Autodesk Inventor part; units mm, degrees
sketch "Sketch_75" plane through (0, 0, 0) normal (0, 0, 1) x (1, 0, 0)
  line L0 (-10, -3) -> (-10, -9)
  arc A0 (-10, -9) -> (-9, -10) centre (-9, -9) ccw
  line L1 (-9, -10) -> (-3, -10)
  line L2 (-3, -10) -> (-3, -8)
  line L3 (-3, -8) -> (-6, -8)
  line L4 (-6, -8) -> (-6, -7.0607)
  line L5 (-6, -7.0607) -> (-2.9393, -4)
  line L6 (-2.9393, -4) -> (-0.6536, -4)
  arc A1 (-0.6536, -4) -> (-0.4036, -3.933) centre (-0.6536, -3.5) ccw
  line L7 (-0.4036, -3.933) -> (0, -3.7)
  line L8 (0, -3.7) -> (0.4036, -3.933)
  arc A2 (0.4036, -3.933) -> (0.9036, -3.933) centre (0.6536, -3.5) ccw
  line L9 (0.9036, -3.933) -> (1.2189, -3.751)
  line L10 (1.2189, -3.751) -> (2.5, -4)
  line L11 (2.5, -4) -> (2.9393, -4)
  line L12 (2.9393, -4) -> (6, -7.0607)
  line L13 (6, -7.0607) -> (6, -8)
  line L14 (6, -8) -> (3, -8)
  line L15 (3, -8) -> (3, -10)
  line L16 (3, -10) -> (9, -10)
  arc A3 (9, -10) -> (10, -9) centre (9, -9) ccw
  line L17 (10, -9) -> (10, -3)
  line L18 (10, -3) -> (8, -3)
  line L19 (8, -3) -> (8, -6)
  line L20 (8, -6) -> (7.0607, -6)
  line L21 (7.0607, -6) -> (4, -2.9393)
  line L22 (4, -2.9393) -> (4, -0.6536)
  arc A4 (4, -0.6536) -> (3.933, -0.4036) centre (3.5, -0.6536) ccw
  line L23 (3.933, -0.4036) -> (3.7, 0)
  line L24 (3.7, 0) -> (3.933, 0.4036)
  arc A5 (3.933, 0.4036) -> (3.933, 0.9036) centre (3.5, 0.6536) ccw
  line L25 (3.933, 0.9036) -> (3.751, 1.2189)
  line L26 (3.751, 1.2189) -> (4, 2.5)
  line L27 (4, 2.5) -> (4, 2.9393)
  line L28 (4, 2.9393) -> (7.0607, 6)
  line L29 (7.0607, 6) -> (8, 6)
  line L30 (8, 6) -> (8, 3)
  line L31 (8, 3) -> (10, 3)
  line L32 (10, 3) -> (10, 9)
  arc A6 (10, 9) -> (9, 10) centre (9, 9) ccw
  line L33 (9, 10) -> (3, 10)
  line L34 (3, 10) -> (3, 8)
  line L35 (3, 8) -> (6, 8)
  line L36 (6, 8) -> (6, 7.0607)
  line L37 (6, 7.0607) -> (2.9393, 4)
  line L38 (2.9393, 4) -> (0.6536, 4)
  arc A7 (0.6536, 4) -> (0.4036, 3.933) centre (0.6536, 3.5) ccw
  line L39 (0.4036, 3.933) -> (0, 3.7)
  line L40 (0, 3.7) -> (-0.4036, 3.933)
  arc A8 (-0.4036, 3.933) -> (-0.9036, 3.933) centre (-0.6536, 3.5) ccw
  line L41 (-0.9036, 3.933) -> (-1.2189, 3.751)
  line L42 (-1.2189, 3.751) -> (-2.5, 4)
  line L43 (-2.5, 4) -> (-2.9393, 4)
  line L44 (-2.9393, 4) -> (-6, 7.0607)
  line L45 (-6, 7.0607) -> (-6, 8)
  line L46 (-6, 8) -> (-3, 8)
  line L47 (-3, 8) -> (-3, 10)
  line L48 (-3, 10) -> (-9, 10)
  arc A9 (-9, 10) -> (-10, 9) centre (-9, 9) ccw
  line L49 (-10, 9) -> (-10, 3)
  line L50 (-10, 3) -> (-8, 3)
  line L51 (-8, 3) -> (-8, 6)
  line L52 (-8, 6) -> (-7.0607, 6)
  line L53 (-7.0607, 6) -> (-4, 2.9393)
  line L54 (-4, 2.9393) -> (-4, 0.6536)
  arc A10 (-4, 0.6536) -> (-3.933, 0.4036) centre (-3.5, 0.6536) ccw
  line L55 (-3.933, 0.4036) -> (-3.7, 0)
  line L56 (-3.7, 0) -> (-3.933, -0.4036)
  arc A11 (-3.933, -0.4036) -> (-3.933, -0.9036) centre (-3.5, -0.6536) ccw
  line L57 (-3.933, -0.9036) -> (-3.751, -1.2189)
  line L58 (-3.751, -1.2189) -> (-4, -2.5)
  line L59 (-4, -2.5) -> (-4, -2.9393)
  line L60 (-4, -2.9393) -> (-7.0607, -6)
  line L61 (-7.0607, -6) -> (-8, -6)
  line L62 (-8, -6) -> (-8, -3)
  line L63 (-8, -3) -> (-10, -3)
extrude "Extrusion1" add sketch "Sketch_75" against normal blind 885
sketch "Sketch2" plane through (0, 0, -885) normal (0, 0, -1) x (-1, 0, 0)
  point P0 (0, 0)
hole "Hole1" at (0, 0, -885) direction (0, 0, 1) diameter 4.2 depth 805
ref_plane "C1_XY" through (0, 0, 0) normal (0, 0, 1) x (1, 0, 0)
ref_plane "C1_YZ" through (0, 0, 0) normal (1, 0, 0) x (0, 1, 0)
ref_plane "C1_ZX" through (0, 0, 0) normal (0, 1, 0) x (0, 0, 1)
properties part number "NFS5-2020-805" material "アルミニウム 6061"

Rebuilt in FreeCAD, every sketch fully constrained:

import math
import FreeCAD as App
import Part
import Sketcher

V = App.Vector
Q = App.Units.Quantity

doc = App.newDocument("Part")
params = doc.addObject("Spreadsheet::Sheet", "Params")
for row, (alias, value) in enumerate([
    ("sketch1_radius", "1 mm"),
    ("sketch1_radius2", "0.5 mm"),
    ("sketch1_width", "2 mm"),
    ("sketch1_width2", "6 mm"),
    ("sketch1_width3", "3 mm"),
    ("pad1_length", "885 mm"),
    ("sketch2_diameter", "4.2 mm"),
    ("hole_diameter", "4.2 mm"),
    ("hole_depth", "805 mm"),
], start=1):
    params.set(f"A{row}", alias)
    params.set(f"B{row}", "=" + value)
    params.setAlias(f"B{row}", alias)

body = doc.addObject("PartDesign::Body", "Body")

# Sketch on XY plane
sketch1 = body.newObject("Sketcher::SketchObject", "Sketch")
sketch1.AttachmentSupport = (doc.getObject("XY_Plane"), [""])
sketch1.MapMode = "FlatFace"
sketch1.addGeometry(Part.LineSegment(V(-8, -3, 0), V(-10, -3, 0)), False)
sketch1.addGeometry(Part.LineSegment(V(-10, -3, 0), V(-10, -9, 0)), False)
sketch1.addGeometry(Part.ArcOfCircle(Part.Circle(V(-9, -9, 0), V(0, 0, 1), 1), math.radians(180), math.radians(270)), False)
sketch1.addGeometry(Part.LineSegment(V(-9, -10, 0), V(-3, -10, 0)), False)
sketch1.addGeometry(Part.LineSegment(V(-3, -10, 0), V(-3, -8, 0)), False)
sketch1.addGeometry(Part.LineSegment(V(-3, -8, 0), V(-6, -8, 0)), False)
sketch1.addGeometry(Part.LineSegment(V(-6, -8, 0), V(-6, -7.06, 0)), False)
sketch1.addGeometry(Part.LineSegment(V(-6, -7.06, 0), V(-2.94, -4, 0)), False)
sketch1.addGeometry(Part.LineSegment(V(-2.94, -4, 0), V(-0.65, -4, 0)), False)
sketch1.addGeometry(Part.ArcOfCircle(Part.Circle(V(-0.65, -3.5, 0), V(0, 0, 1), 0.5), math.radians(-90), math.radians(-60)), False)
sketch1.addGeometry(Part.LineSegment(V(-0.4, -3.93, 0), V(0, -3.7, 0)), False)
sketch1.addGeometry(Part.LineSegment(V(0, -3.7, 0), V(0.4, -3.93, 0)), False)
sketch1.addGeometry(Part.ArcOfCircle(Part.Circle(V(0.65, -3.5, 0), V(0, 0, 1), 0.5), math.radians(-120), math.radians(-60)), False)
sketch1.addGeometry(Part.LineSegment(V(0.9, -3.93, 0), V(1.22, -3.75, 0)), False)
sketch1.addGeometry(Part.LineSegment(V(1.22, -3.75, 0), V(2.5, -4, 0)), False)
sketch1.addGeometry(Part.LineSegment(V(2.5, -4, 0), V(2.94, -4, 0)), False)
sketch1.addGeometry(Part.LineSegment(V(2.94, -4, 0), V(6, -7.06, 0)), False)
sketch1.addGeometry(Part.LineSegment(V(6, -7.06, 0), V(6, -8, 0)), False)
sketch1.addGeometry(Part.LineSegment(V(6, -8, 0), V(3, -8, 0)), False)
sketch1.addGeometry(Part.LineSegment(V(3, -8, 0), V(3, -10, 0)), False)
sketch1.addGeometry(Part.LineSegment(V(3, -10, 0), V(9, -10, 0)), False)
sketch1.addGeometry(Part.ArcOfCircle(Part.Circle(V(9, -9, 0), V(0, 0, 1), 1), math.radians(-90), math.radians(0)), False)
sketch1.addGeometry(Part.LineSegment(V(10, -9, 0), V(10, -3, 0)), False)
sketch1.addGeometry(Part.LineSegment(V(10, -3, 0), V(8, -3, 0)), False)
sketch1.addGeometry(Part.LineSegment(V(8, -3, 0), V(8, -6, 0)), False)
sketch1.addGeometry(Part.LineSegment(V(8, -6, 0), V(7.06, -6, 0)), False)
sketch1.addGeometry(Part.LineSegment(V(7.06, -6, 0), V(4, -2.94, 0)), False)
sketch1.addGeometry(Part.LineSegment(V(4, -2.94, 0), V(4, -0.65, 0)), False)
sketch1.addGeometry(Part.ArcOfCircle(Part.Circle(V(3.5, -0.65, 0), V(0, 0, 1), 0.5), math.radians(0), math.radians(30)), False)
sketch1.addGeometry(Part.LineSegment(V(3.93, -0.4, 0), V(3.7, 0, 0)), False)
sketch1.addGeometry(Part.LineSegment(V(3.7, 0, 0), V(3.93, 0.4, 0)), False)
sketch1.addGeometry(Part.ArcOfCircle(Part.Circle(V(3.5, 0.65, 0), V(0, 0, 1), 0.5), math.radians(-30), math.radians(30)), False)
sketch1.addGeometry(Part.LineSegment(V(3.93, 0.9, 0), V(3.75, 1.22, 0)), False)
sketch1.addGeometry(Part.LineSegment(V(3.75, 1.22, 0), V(4, 2.5, 0)), False)
sketch1.addGeometry(Part.LineSegment(V(4, 2.5, 0), V(4, 2.94, 0)), False)
sketch1.addGeometry(Part.LineSegment(V(4, 2.94, 0), V(7.06, 6, 0)), False)
sketch1.addGeometry(Part.LineSegment(V(7.06, 6, 0), V(8, 6, 0)), False)
sketch1.addGeometry(Part.LineSegment(V(8, 6, 0), V(8, 3, 0)), False)
sketch1.addGeometry(Part.LineSegment(V(8, 3, 0), V(10, 3, 0)), False)
sketch1.addGeometry(Part.LineSegment(V(10, 3, 0), V(10, 9, 0)), False)
sketch1.addGeometry(Part.ArcOfCircle(Part.Circle(V(9, 9, 0), V(0, 0, 1), 1), math.radians(0), math.radians(90)), False)
sketch1.addGeometry(Part.LineSegment(V(9, 10, 0), V(3, 10, 0)), False)
sketch1.addGeometry(Part.LineSegment(V(3, 10, 0), V(3, 8, 0)), False)
sketch1.addGeometry(Part.LineSegment(V(3, 8, 0), V(6, 8, 0)), False)
sketch1.addGeometry(Part.LineSegment(V(6, 8, 0), V(6, 7.06, 0)), False)
sketch1.addGeometry(Part.LineSegment(V(6, 7.06, 0), V(2.94, 4, 0)), False)
sketch1.addGeometry(Part.LineSegment(V(2.94, 4, 0), V(0.65, 4, 0)), False)
sketch1.addGeometry(Part.ArcOfCircle(Part.Circle(V(0.65, 3.5, 0), V(0, 0, 1), 0.5), math.radians(90), math.radians(120)), False)
sketch1.addGeometry(Part.LineSegment(V(0.4, 3.93, 0), V(0, 3.7, 0)), False)
sketch1.addGeometry(Part.LineSegment(V(0, 3.7, 0), V(-0.4, 3.93, 0)), False)
sketch1.addGeometry(Part.ArcOfCircle(Part.Circle(V(-0.65, 3.5, 0), V(0, 0, 1), 0.5), math.radians(60), math.radians(120)), False)
sketch1.addGeometry(Part.LineSegment(V(-0.9, 3.93, 0), V(-1.22, 3.75, 0)), False)
sketch1.addGeometry(Part.LineSegment(V(-1.22, 3.75, 0), V(-2.5, 4, 0)), False)
sketch1.addGeometry(Part.LineSegment(V(-2.5, 4, 0), V(-2.94, 4, 0)), False)
sketch1.addGeometry(Part.LineSegment(V(-2.94, 4, 0), V(-6, 7.06, 0)), False)
sketch1.addGeometry(Part.LineSegment(V(-6, 7.06, 0), V(-6, 8, 0)), False)
sketch1.addGeometry(Part.LineSegment(V(-6, 8, 0), V(-3, 8, 0)), False)
sketch1.addGeometry(Part.LineSegment(V(-3, 8, 0), V(-3, 10, 0)), False)
sketch1.addGeometry(Part.LineSegment(V(-3, 10, 0), V(-9, 10, 0)), False)
sketch1.addGeometry(Part.ArcOfCircle(Part.Circle(V(-9, 9, 0), V(0, 0, 1), 1), math.radians(90), math.radians(180)), False)
sketch1.addGeometry(Part.LineSegment(V(-10, 9, 0), V(-10, 3, 0)), False)
sketch1.addGeometry(Part.LineSegment(V(-10, 3, 0), V(-8, 3, 0)), False)
sketch1.addGeometry(Part.LineSegment(V(-8, 3, 0), V(-8, 6, 0)), False)
sketch1.addGeometry(Part.LineSegment(V(-8, 6, 0), V(-7.06, 6, 0)), False)
sketch1.addGeometry(Part.LineSegment(V(-7.06, 6, 0), V(-4, 2.94, 0)), False)
sketch1.addGeometry(Part.LineSegment(V(-4, 2.94, 0), V(-4, 0.65, 0)), False)
sketch1.addGeometry(Part.ArcOfCircle(Part.Circle(V(-3.5, 0.65, 0), V(0, 0, 1), 0.5), math.radians(180), math.radians(210)), False)
sketch1.addGeometry(Part.LineSegment(V(-3.93, 0.4, 0), V(-3.7, 0, 0)), False)
sketch1.addGeometry(Part.LineSegment(V(-3.7, 0, 0), V(-3.93, -0.4, 0)), False)
sketch1.addGeometry(Part.ArcOfCircle(Part.Circle(V(-3.5, -0.65, 0), V(0, 0, 1), 0.5), math.radians(150), math.radians(210)), False)
sketch1.addGeometry(Part.LineSegment(V(-3.93, -0.9, 0), V(-3.75, -1.22, 0)), False)
sketch1.addGeometry(Part.LineSegment(V(-3.75, -1.22, 0), V(-4, -2.5, 0)), False)
sketch1.addGeometry(Part.LineSegment(V(-4, -2.5, 0), V(-4, -2.94, 0)), False)
sketch1.addGeometry(Part.LineSegment(V(-4, -2.94, 0), V(-7.06, -6, 0)), False)
sketch1.addGeometry(Part.LineSegment(V(-7.06, -6, 0), V(-8, -6, 0)), False)
sketch1.addGeometry(Part.LineSegment(V(-8, -6, 0), V(-8, -3, 0)), False)
sketch1.addConstraint(Sketcher.Constraint("Coincident", 0, 2, 1, 1))
sketch1.addConstraint(Sketcher.Constraint("Tangent", 1, 2, 2, 1))
sketch1.addConstraint(Sketcher.Constraint("Tangent", 2, 2, 3, 1))
sketch1.addConstraint(Sketcher.Constraint("Coincident", 3, 2, 4, 1))
sketch1.addConstraint(Sketcher.Constraint("Coincident", 4, 2, 5, 1))
sketch1.addConstraint(Sketcher.Constraint("Coincident", 5, 2, 6, 1))
sketch1.addConstraint(Sketcher.Constraint("Coincident", 6, 2, 7, 1))
sketch1.addConstraint(Sketcher.Constraint("Coincident", 7, 2, 8, 1))
sketch1.addConstraint(Sketcher.Constraint("Tangent", 8, 2, 9, 1))
sketch1.addConstraint(Sketcher.Constraint("Tangent", 9, 2, 10, 1))
sketch1.addConstraint(Sketcher.Constraint("Coincident", 10, 2, 11, 1))
sketch1.addConstraint(Sketcher.Constraint("Tangent", 11, 2, 12, 1))
sketch1.addConstraint(Sketcher.Constraint("Tangent", 12, 2, 13, 1))
sketch1.addConstraint(Sketcher.Constraint("Coincident", 13, 2, 14, 1))
sketch1.addConstraint(Sketcher.Constraint("Coincident", 14, 2, 15, 1))
sketch1.addConstraint(Sketcher.Constraint("Coincident", 15, 2, 16, 1))
sketch1.addConstraint(Sketcher.Constraint("Coincident", 16, 2, 17, 1))
sketch1.addConstraint(Sketcher.Constraint("Coincident", 17, 2, 18, 1))
sketch1.addConstraint(Sketcher.Constraint("Coincident", 18, 2, 19, 1))
sketch1.addConstraint(Sketcher.Constraint("Coincident", 19, 2, 20, 1))
sketch1.addConstraint(Sketcher.Constraint("Tangent", 20, 2, 21, 1))
sketch1.addConstraint(Sketcher.Constraint("Tangent", 21, 2, 22, 1))
sketch1.addConstraint(Sketcher.Constraint("Coincident", 22, 2, 23, 1))
sketch1.addConstraint(Sketcher.Constraint("Coincident", 23, 2, 24, 1))
sketch1.addConstraint(Sketcher.Constraint("Coincident", 24, 2, 25, 1))
sketch1.addConstraint(Sketcher.Constraint("Coincident", 25, 2, 26, 1))
sketch1.addConstraint(Sketcher.Constraint("Coincident", 26, 2, 27, 1))
sketch1.addConstraint(Sketcher.Constraint("Tangent", 27, 2, 28, 1))
sketch1.addConstraint(Sketcher.Constraint("Tangent", 28, 2, 29, 1))
sketch1.addConstraint(Sketcher.Constraint("Coincident", 29, 2, 30, 1))
sketch1.addConstraint(Sketcher.Constraint("Tangent", 30, 2, 31, 1))
sketch1.addConstraint(Sketcher.Constraint("Tangent", 31, 2, 32, 1))
sketch1.addConstraint(Sketcher.Constraint("Coincident", 32, 2, 33, 1))
sketch1.addConstraint(Sketcher.Constraint("Coincident", 33, 2, 34, 1))
sketch1.addConstraint(Sketcher.Constraint("Coincident", 34, 2, 35, 1))
sketch1.addConstraint(Sketcher.Constraint("Coincident", 35, 2, 36, 1))
sketch1.addConstraint(Sketcher.Constraint("Coincident", 36, 2, 37, 1))
sketch1.addConstraint(Sketcher.Constraint("Coincident", 37, 2, 38, 1))
sketch1.addConstraint(Sketcher.Constraint("Coincident", 38, 2, 39, 1))
sketch1.addConstraint(Sketcher.Constraint("Tangent", 39, 2, 40, 1))
sketch1.addConstraint(Sketcher.Constraint("Tangent", 40, 2, 41, 1))
sketch1.addConstraint(Sketcher.Constraint("Coincident", 41, 2, 42, 1))
sketch1.addConstraint(Sketcher.Constraint("Coincident", 42, 2, 43, 1))
sketch1.addConstraint(Sketcher.Constraint("Coincident", 43, 2, 44, 1))
sketch1.addConstraint(Sketcher.Constraint("Coincident", 44, 2, 45, 1))
sketch1.addConstraint(Sketcher.Constraint("Coincident", 45, 2, 46, 1))
sketch1.addConstraint(Sketcher.Constraint("Tangent", 46, 2, 47, 1))
sketch1.addConstraint(Sketcher.Constraint("Tangent", 47, 2, 48, 1))
sketch1.addConstraint(Sketcher.Constraint("Coincident", 48, 2, 49, 1))
sketch1.addConstraint(Sketcher.Constraint("Tangent", 49, 2, 50, 1))
sketch1.addConstraint(Sketcher.Constraint("Tangent", 50, 2, 51, 1))
sketch1.addConstraint(Sketcher.Constraint("Coincident", 51, 2, 52, 1))
sketch1.addConstraint(Sketcher.Constraint("Coincident", 52, 2, 53, 1))
sketch1.addConstraint(Sketcher.Constraint("Coincident", 53, 2, 54, 1))
sketch1.addConstraint(Sketcher.Constraint("Coincident", 54, 2, 55, 1))
sketch1.addConstraint(Sketcher.Constraint("Coincident", 55, 2, 56, 1))
sketch1.addConstraint(Sketcher.Constraint("Coincident", 56, 2, 57, 1))
sketch1.addConstraint(Sketcher.Constraint("Coincident", 57, 2, 58, 1))
sketch1.addConstraint(Sketcher.Constraint("Tangent", 58, 2, 59, 1))
sketch1.addConstraint(Sketcher.Constraint("Tangent", 59, 2, 60, 1))
sketch1.addConstraint(Sketcher.Constraint("Coincident", 60, 2, 61, 1))
sketch1.addConstraint(Sketcher.Constraint("Coincident", 61, 2, 62, 1))
sketch1.addConstraint(Sketcher.Constraint("Coincident", 62, 2, 63, 1))
sketch1.addConstraint(Sketcher.Constraint("Coincident", 63, 2, 64, 1))
sketch1.addConstraint(Sketcher.Constraint("Coincident", 64, 2, 65, 1))
sketch1.addConstraint(Sketcher.Constraint("Tangent", 65, 2, 66, 1))
sketch1.addConstraint(Sketcher.Constraint("Tangent", 66, 2, 67, 1))
sketch1.addConstraint(Sketcher.Constraint("Coincident", 67, 2, 68, 1))
sketch1.addConstraint(Sketcher.Constraint("Tangent", 68, 2, 69, 1))
sketch1.addConstraint(Sketcher.Constraint("Tangent", 69, 2, 70, 1))
sketch1.addConstraint(Sketcher.Constraint("Coincident", 70, 2, 71, 1))
sketch1.addConstraint(Sketcher.Constraint("Coincident", 71, 2, 72, 1))
sketch1.addConstraint(Sketcher.Constraint("Coincident", 72, 2, 73, 1))
sketch1.addConstraint(Sketcher.Constraint("Coincident", 73, 2, 74, 1))
sketch1.addConstraint(Sketcher.Constraint("Coincident", 74, 2, 75, 1))
sketch1.addConstraint(Sketcher.Constraint("Coincident", 75, 2, 0, 1))
sketch1.addConstraint(Sketcher.Constraint("Horizontal", 0))
sketch1.addConstraint(Sketcher.Constraint("Vertical", 1))
sketch1.addConstraint(Sketcher.Constraint("Horizontal", 3))
sketch1.addConstraint(Sketcher.Constraint("Vertical", 4))
sketch1.addConstraint(Sketcher.Constraint("Horizontal", 5))
sketch1.addConstraint(Sketcher.Constraint("Vertical", 6))
sketch1.addConstraint(Sketcher.Constraint("Horizontal", 8))
sketch1.addConstraint(Sketcher.Constraint("Horizontal", 15))
sketch1.addConstraint(Sketcher.Constraint("Vertical", 17))
sketch1.addConstraint(Sketcher.Constraint("Horizontal", 18))
sketch1.addConstraint(Sketcher.Constraint("Vertical", 19))
sketch1.addConstraint(Sketcher.Constraint("Horizontal", 20))
sketch1.addConstraint(Sketcher.Constraint("Vertical", 22))
sketch1.addConstraint(Sketcher.Constraint("Horizontal", 23))
sketch1.addConstraint(Sketcher.Constraint("Vertical", 24))
sketch1.addConstraint(Sketcher.Constraint("Horizontal", 25))
sketch1.addConstraint(Sketcher.Constraint("Vertical", 27))
sketch1.addConstraint(Sketcher.Constraint("Vertical", 34))
sketch1.addConstraint(Sketcher.Constraint("Horizontal", 36))
sketch1.addConstraint(Sketcher.Constraint("Vertical", 37))
sketch1.addConstraint(Sketcher.Constraint("Horizontal", 38))
sketch1.addConstraint(Sketcher.Constraint("Vertical", 39))
sketch1.addConstraint(Sketcher.Constraint("Horizontal", 41))
sketch1.addConstraint(Sketcher.Constraint("Vertical", 42))
sketch1.addConstraint(Sketcher.Constraint("Horizontal", 43))
sketch1.addConstraint(Sketcher.Constraint("Vertical", 44))
sketch1.addConstraint(Sketcher.Constraint("Horizontal", 46))
sketch1.addConstraint(Sketcher.Constraint("Horizontal", 53))
sketch1.addConstraint(Sketcher.Constraint("Vertical", 55))
sketch1.addConstraint(Sketcher.Constraint("Horizontal", 56))
sketch1.addConstraint(Sketcher.Constraint("Vertical", 57))
sketch1.addConstraint(Sketcher.Constraint("Horizontal", 58))
sketch1.addConstraint(Sketcher.Constraint("Vertical", 60))
sketch1.addConstraint(Sketcher.Constraint("Horizontal", 61))
sketch1.addConstraint(Sketcher.Constraint("Vertical", 62))
sketch1.addConstraint(Sketcher.Constraint("Horizontal", 63))
sketch1.addConstraint(Sketcher.Constraint("Vertical", 65))
sketch1.addConstraint(Sketcher.Constraint("Vertical", 72))
sketch1.addConstraint(Sketcher.Constraint("Horizontal", 74))
sketch1.addConstraint(Sketcher.Constraint("Vertical", 75))
sketch1.addConstraint(Sketcher.Constraint("Equal", 9, 12))
sketch1.addConstraint(Sketcher.Constraint("Equal", 2, 21))
sketch1.addConstraint(Sketcher.Constraint("Equal", 12, 28))
sketch1.addConstraint(Sketcher.Constraint("Equal", 28, 31))
sketch1.addConstraint(Sketcher.Constraint("Equal", 21, 40))
sketch1.addConstraint(Sketcher.Constraint("Equal", 31, 47))
sketch1.addConstraint(Sketcher.Constraint("Equal", 47, 50))
sketch1.addConstraint(Sketcher.Constraint("Equal", 40, 59))
sketch1.addConstraint(Sketcher.Constraint("Equal", 50, 66))
sketch1.addConstraint(Sketcher.Constraint("Equal", 66, 69))
sketch1.addConstraint(Sketcher.Constraint("Symmetric", 2, 3, 40, 3, -1, 1))
sketch1.addConstraint(Sketcher.Constraint("Symmetric", 9, 3, 47, 3, -1, 1))
sketch1.addConstraint(Sketcher.Constraint("Symmetric", 12, 3, 50, 3, -1, 1))
sketch1.addConstraint(Sketcher.Constraint("Symmetric", 21, 3, 59, 3, -1, 1))
sketch1.addConstraint(Sketcher.Constraint("Symmetric", 28, 3, 66, 3, -1, 1))
sketch1.addConstraint(Sketcher.Constraint("Symmetric", 31, 3, 69, 3, -1, 1))
sketch1.addConstraint(Sketcher.Constraint("Symmetric", 4, 2, 42, 2, -1, 1))
sketch1.addConstraint(Sketcher.Constraint("Symmetric", 6, 2, 44, 2, -1, 1))
sketch1.addConstraint(Sketcher.Constraint("Symmetric", 10, 2, 48, 2, -1, 1))
sketch1.addConstraint(Sketcher.Constraint("Symmetric", 13, 2, 51, 2, -1, 1))
sketch1.addConstraint(Sketcher.Constraint("Symmetric", 14, 2, 52, 2, -1, 1))
sketch1.addConstraint(Sketcher.Constraint("Symmetric", 16, 2, 54, 2, -1, 1))
sketch1.addConstraint(Sketcher.Constraint("Symmetric", 18, 2, 56, 2, -1, 1))
sketch1.addConstraint(Sketcher.Constraint("Symmetric", 23, 2, 61, 2, -1, 1))
sketch1.addConstraint(Sketcher.Constraint("Symmetric", 25, 2, 63, 2, -1, 1))
sketch1.addConstraint(Sketcher.Constraint("Symmetric", 29, 2, 67, 2, -1, 1))
sketch1.addConstraint(Sketcher.Constraint("Symmetric", 32, 2, 70, 2, -1, 1))
sketch1.addConstraint(Sketcher.Constraint("Symmetric", 33, 2, 71, 2, -1, 1))
sketch1.addConstraint(Sketcher.Constraint("Symmetric", 35, 2, 73, 2, -1, 1))
sketch1.addConstraint(Sketcher.Constraint("Symmetric", 37, 2, 75, 2, -1, 1))
sketch1.addConstraint(Sketcher.Constraint("Symmetric", 9, 3, 12, 3, -2))
sketch1.addConstraint(Sketcher.Constraint("Symmetric", 2, 3, 21, 3, -2))
sketch1.addConstraint(Sketcher.Constraint("Symmetric", 31, 3, 66, 3, -2))
sketch1.addConstraint(Sketcher.Constraint("Symmetric", 7, 2, 15, 2, -2))
sketch1.addConstraint(Sketcher.Constraint("Symmetric", 6, 2, 16, 2, -2))
sketch1.addConstraint(Sketcher.Constraint("Symmetric", 4, 2, 18, 2, -2))
sketch1.addConstraint(Sketcher.Constraint("Symmetric", 37, 2, 61, 2, -2))
sketch1.addConstraint(Sketcher.Constraint("Symmetric", 35, 2, 63, 2, -2))
sketch1.addConstraint(Sketcher.Constraint("Symmetric", 34, 2, 64, 2, -2))
sketch1.addConstraint(Sketcher.Constraint("PointOnObject", 10, 2, -2))
sketch1.addConstraint(Sketcher.Constraint("PointOnObject", 29, 2, -1))
sketch1.addConstraint(Sketcher.Constraint("Parallel", 10, 13))
sketch1.addConstraint(Sketcher.Constraint("Perpendicular", 7, 16))
sketch1.addConstraint(Sketcher.Constraint("Parallel", 16, 26))
sketch1.addConstraint(Sketcher.Constraint("Perpendicular", 13, 29))
sketch1.addConstraint(Sketcher.Constraint("Parallel", 29, 32))
sketch1.addConstraint(Sketcher.Constraint("Perpendicular", 14, 33))
sketch1.addConstraint(Sketcher.Constraint("Perpendicular", 26, 35))
sketch1.addConstraint(Sketcher.Constraint("Parallel", 35, 45))
sketch1.addConstraint(Sketcher.Constraint("Perpendicular", 45, 54))
sketch1.addConstraint(Sketcher.Constraint("Perpendicular", 64, 73))
sketch1.addConstraint(Sketcher.Constraint("Equal", 58, 1))
sketch1.addConstraint(Sketcher.Constraint("Equal", 61, 4))
sketch1.addConstraint(Sketcher.Constraint("Equal", 74, 6))
sketch1.addConstraint(Sketcher.Constraint("Equal", 56, 24))
sketch1.addConstraint(Sketcher.Constraint("Equal", 46, 27))
sketch1.addConstraint(Sketcher.Constraint("Equal", 53, 34))
sketch1.addConstraint(Sketcher.Constraint("Equal", 16, 26))
sketch1.addConstraint(Sketcher.Constraint("Equal", 11, 29))
sketch1.addConstraint(Sketcher.Constraint("Radius", 2, 1.0))
sketch1.addConstraint(Sketcher.Constraint("Radius", 9, 0.5))
sketch1.addConstraint(Sketcher.Constraint("DistanceX", 0, 2, 0, 1, 2.0))
sketch1.addConstraint(Sketcher.Constraint("DistanceX", 3, 1, 3, 2, 6.0))
sketch1.addConstraint(Sketcher.Constraint("DistanceX", 5, 2, 5, 1, 3.0))
sketch1.addConstraint(Sketcher.Constraint("Angle", 14, Q("-10.999 deg")))
sketch1.addConstraint(Sketcher.Constraint("DistanceX", 2, 3, -1, 1, 9.0))
sketch1.addConstraint(Sketcher.Constraint("DistanceY", 7, 2, -1, 1, 4.0))
sketch1.addConstraint(Sketcher.Constraint("DistanceY", 10, 2, -1, 1, 3.7))
sketch1.addConstraint(Sketcher.Constraint("DistanceX", -1, 1, 14, 2, 2.5))
sketch1.addConstraint(Sketcher.Constraint("Distance", 10, 0.466))
sketch1.addConstraint(Sketcher.Constraint("DistanceX", 8, 1, 8, 2, 2.2857))
sketch1.setExpression("Constraints[175]", "Params.sketch1_radius")
sketch1.setExpression("Constraints[176]", "Params.sketch1_radius2")
sketch1.setExpression("Constraints[177]", "Params.sketch1_width")
sketch1.setExpression("Constraints[178]", "Params.sketch1_width2")
sketch1.setExpression("Constraints[179]", "Params.sketch1_width3")
pad1 = body.newObject("PartDesign::Pad", "Pad")
pad1.Profile = sketch1
pad1.setExpression("Length", "Params.pad1_length")
pad1.Reversed = True

# Sketch on XY plane
sketch2 = body.newObject("Sketcher::SketchObject", "Sketch001")
sketch2.AttachmentSupport = (doc.getObject("XY_Plane"), [""])
sketch2.MapMode = "FlatFace"
sketch2.AttachmentOffset = App.Placement(V(0, 0, -885), App.Rotation())
sketch2.addGeometry(Part.Circle(V(0, 0, 0), V(0, 0, 1), 2.1), False)
sketch2.addConstraint(Sketcher.Constraint("Coincident", 0, 3, -1, 1))
sketch2.addConstraint(Sketcher.Constraint("Diameter", 0, 4.2))
sketch2.setExpression("Constraints[1]", "Params.sketch2_diameter")
doc.recompute()
hole = body.newObject("PartDesign::Hole", "Hole")
hole.Profile = sketch2
hole.ThreadType = "None"
hole.setExpression("Diameter", "Params.hole_diameter")
hole.DepthType = "Dimension"
hole.setExpression("Depth", "Params.hole_depth")
hole.DrillPoint = "Flat"
hole.Reversed = True

doc.recompute()
